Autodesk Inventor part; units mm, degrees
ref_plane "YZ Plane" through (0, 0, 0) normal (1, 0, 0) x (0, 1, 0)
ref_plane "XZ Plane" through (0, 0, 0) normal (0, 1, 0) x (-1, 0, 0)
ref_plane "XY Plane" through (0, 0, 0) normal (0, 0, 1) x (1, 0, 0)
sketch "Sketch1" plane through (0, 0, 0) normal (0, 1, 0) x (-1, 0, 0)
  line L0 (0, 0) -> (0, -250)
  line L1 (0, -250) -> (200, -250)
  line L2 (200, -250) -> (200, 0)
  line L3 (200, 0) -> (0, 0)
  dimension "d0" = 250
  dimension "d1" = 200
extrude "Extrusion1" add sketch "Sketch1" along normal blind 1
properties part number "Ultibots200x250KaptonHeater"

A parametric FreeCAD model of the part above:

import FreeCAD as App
import Part
import Sketcher
Q = App.Units.Quantity

doc = App.newDocument("Part")
body = doc.addObject("PartDesign::Body", "Body")

sketch1 = body.newObject("Sketcher::SketchObject", "Sketch")
sketch1.AttachmentSupport = (doc.getObject("XZ_Plane"), [""])
sketch1.MapMode = "FlatFace"
sketch1.addGeometry([
    Part.LineSegment(App.Vector(-200, 0, 0), App.Vector(0, 0, 0)),
    Part.LineSegment(App.Vector(0, 0, 0), App.Vector(0, -250, 0)),
    Part.LineSegment(App.Vector(0, -250, 0), App.Vector(-200, -250, 0)),
    Part.LineSegment(App.Vector(-200, -250, 0), App.Vector(-200, 0, 0)),
], False)
sketch1.addConstraint([
    Sketcher.Constraint("Coincident", 0, 2, 1, 1),
    Sketcher.Constraint("Coincident", 1, 2, 2, 1),
    Sketcher.Constraint("Coincident", 2, 2, 3, 1),
    Sketcher.Constraint("Coincident", 3, 2, 0, 1),
    Sketcher.Constraint("Horizontal", 0),
    Sketcher.Constraint("Vertical", 1),
    Sketcher.Constraint("Horizontal", 2),
    Sketcher.Constraint("Vertical", 3),
    Sketcher.Constraint("Coincident", 0, 2, -1, 1),
    Sketcher.Constraint("DistanceX", 0, 1, 0, 2, Q("200 mm")),
    Sketcher.Constraint("DistanceY", 1, 2, 1, 1, Q("250 mm")),
])
pad1 = body.newObject("PartDesign::Pad", "Pad")
pad1.Profile = sketch1
pad1.Length = 1
pad1.Reversed = True

doc.recompute()
